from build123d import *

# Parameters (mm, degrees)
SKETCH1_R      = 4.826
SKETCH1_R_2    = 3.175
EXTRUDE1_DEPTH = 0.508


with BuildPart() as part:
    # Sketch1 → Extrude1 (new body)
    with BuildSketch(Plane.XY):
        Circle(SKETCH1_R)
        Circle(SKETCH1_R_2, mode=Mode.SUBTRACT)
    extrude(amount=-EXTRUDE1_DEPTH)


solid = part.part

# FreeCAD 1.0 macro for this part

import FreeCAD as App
import Part
import Sketcher

V = App.Vector
Q = App.Units.Quantity

doc = App.newDocument("Part")
body = doc.addObject("PartDesign::Body", "Body")

# Sketch on XY plane
sketch1 = doc.addObject("Sketcher::SketchObject", "Sketch")
body.addObject(sketch1)
sketch1.AttachmentSupport = (doc.XY_Plane, [""])
sketch1.MapMode = "FlatFace"
sketch1.addGeometry([
    Part.Circle(V(0, 0, 0), V(0, 0, 1), 4.8),
    Part.Circle(V(0, 0, 0), V(0, 0, 1), 3.2),
], False)
sketch1.addConstraint([
    Sketcher.Constraint("Coincident", 0, 3, -1, 1),
    Sketcher.Constraint("Coincident", 1, 3, -1, 1),
    Sketcher.Constraint("Diameter", 0, Q("0.38 in")),
    Sketcher.Constraint("Diameter", 1, Q("0.25 in")),
])
pad1 = doc.addObject("PartDesign::Pad", "Pad")
body.addObject(pad1)
pad1.Profile = sketch1
pad1.Length = Q("0.02 in")
pad1.Reversed = True

doc.recompute()
